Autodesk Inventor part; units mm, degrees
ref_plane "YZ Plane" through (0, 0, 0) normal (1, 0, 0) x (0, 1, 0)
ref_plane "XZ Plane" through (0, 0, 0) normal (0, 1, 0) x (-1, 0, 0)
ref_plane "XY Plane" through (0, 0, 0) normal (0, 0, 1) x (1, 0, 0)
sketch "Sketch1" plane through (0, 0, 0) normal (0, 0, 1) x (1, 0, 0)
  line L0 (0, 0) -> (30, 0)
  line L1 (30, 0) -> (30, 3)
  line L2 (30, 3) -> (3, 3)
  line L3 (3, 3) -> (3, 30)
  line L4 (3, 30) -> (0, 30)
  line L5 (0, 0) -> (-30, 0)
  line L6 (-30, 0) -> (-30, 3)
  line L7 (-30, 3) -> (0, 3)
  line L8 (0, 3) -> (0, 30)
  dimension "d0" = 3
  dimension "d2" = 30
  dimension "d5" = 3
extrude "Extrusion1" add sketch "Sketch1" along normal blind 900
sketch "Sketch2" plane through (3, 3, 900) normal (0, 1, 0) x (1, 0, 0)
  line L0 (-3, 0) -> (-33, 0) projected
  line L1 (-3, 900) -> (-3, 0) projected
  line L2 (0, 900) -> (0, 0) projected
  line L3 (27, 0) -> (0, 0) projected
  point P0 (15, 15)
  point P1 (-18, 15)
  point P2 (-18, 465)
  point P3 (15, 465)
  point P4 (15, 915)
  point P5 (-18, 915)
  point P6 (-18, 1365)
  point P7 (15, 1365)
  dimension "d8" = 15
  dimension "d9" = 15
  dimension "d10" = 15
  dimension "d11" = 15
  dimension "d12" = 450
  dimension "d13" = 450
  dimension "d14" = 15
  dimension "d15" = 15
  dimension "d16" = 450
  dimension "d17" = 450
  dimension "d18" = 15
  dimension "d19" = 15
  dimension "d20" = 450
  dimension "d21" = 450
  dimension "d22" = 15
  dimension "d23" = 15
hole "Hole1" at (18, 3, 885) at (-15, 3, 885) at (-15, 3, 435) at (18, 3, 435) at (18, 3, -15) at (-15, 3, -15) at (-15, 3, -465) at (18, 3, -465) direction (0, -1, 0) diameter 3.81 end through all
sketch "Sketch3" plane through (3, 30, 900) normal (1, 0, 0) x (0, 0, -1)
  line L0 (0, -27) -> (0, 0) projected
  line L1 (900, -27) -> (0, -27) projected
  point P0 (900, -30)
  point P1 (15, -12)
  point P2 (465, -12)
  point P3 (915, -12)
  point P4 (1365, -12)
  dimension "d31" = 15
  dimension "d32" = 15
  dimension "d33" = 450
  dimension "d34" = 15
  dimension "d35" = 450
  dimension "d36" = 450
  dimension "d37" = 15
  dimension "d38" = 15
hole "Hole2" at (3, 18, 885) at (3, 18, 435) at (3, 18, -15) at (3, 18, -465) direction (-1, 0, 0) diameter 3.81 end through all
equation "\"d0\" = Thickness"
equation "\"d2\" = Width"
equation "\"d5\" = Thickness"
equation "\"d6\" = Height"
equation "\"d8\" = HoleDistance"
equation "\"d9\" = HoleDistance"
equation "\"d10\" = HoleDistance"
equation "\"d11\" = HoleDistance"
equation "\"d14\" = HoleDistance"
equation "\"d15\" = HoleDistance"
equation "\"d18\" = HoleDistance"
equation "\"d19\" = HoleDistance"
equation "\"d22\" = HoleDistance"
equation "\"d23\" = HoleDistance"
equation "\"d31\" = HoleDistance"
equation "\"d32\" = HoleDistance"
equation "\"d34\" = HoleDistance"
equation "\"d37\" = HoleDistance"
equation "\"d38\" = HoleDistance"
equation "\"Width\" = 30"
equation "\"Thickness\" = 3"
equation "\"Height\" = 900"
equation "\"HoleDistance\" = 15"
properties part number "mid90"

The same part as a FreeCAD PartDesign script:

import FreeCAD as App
import Part
import Sketcher
Q = App.Units.Quantity


def add_polygon(sketch, points):
    """Adds a closed chain of lines whose ends are joined by coincident constraints."""
    first, n = sketch.GeometryCount, len(points)
    for a, b in zip(points, points[1:] + points[:1]):
        sketch.addGeometry(Part.LineSegment(App.Vector(*a, 0), App.Vector(*b, 0)), False)
    for i in range(n):
        sketch.addConstraint(Sketcher.Constraint("Coincident", first + i, 2, first + (i + 1) % n, 1))

doc = App.newDocument("Part")
params = doc.addObject("Spreadsheet::Sheet", "Params")
for row, (alias, value) in enumerate([
    ("pad1_length", "900 mm"),
    ("sketch2_diameter", "0.15 in"),
    ("hole_diameter", "0.15 in"),
    ("sketch3_diameter", "0.15 in"),
    ("hole2_diameter", "0.15 in"),
], start=1):
    params.set(f"A{row}", alias)
    params.set(f"B{row}", "=" + value)
    params.setAlias(f"B{row}", alias)

body = doc.addObject("PartDesign::Body", "Body")

# Sketch on XY plane
sketch1 = body.newObject("Sketcher::SketchObject", "Sketch")
sketch1.AttachmentSupport = (doc.getObject("XY_Plane"), [""])
sketch1.MapMode = "FlatFace"
add_polygon(sketch1, [(-30, 0), (30, 0), (30, 3), (3, 3), (3, 30), (0, 30), (0, 3), (-30, 3)])  # lines 0-7
sketch1.addConstraint(Sketcher.Constraint("Horizontal", 0))
sketch1.addConstraint(Sketcher.Constraint("Vertical", 1))
sketch1.addConstraint(Sketcher.Constraint("Horizontal", 2))
sketch1.addConstraint(Sketcher.Constraint("Vertical", 3))
sketch1.addConstraint(Sketcher.Constraint("Horizontal", 4))
sketch1.addConstraint(Sketcher.Constraint("Vertical", 5))
sketch1.addConstraint(Sketcher.Constraint("Horizontal", 6))
sketch1.addConstraint(Sketcher.Constraint("Vertical", 7))
sketch1.addConstraint(Sketcher.Constraint("Symmetric", 0, 2, 7, 2, -1, 1))
sketch1.addConstraint(Sketcher.Constraint("PointOnObject", 4, 2, -2))
sketch1.addConstraint(Sketcher.Constraint("Horizontal", 2, 2, 5, 2))
sketch1.addConstraint(Sketcher.Constraint("Equal", 4, 1))
sketch1.addConstraint(Sketcher.Constraint("Equal", 2, 3))
sketch1.addConstraint(Sketcher.Constraint("DistanceX", 4, 2, 4, 1, Q("0.1181 in")))
sketch1.addConstraint(Sketcher.Constraint("DistanceX", 6, 2, 6, 1, Q("1.1811 in")))
pad1 = body.newObject("PartDesign::Pad", "Pad")
pad1.Profile = sketch1
pad1.setExpression("Length", "Params.pad1_length")

# Sketch on XZ plane
sketch2 = body.newObject("Sketcher::SketchObject", "Sketch001")
sketch2.AttachmentSupport = (doc.getObject("XZ_Plane"), [""])
sketch2.MapMode = "FlatFace"
sketch2.AttachmentOffset = App.Placement(App.Vector(0, 0, -0.1181102 * 25.4), App.Rotation())
sketch2.addGeometry(Part.Circle(App.Vector(18, 885, 0), App.Vector(0, 0, 1), 1.9), False)
sketch2.addGeometry(Part.Circle(App.Vector(-15, 885, 0), App.Vector(0, 0, 1), 1.9), False)
sketch2.addGeometry(Part.Circle(App.Vector(-15, 435, 0), App.Vector(0, 0, 1), 1.9), False)
sketch2.addGeometry(Part.Circle(App.Vector(18, 435, 0), App.Vector(0, 0, 1), 1.9), False)
sketch2.addGeometry(Part.Circle(App.Vector(18, -15, 0), App.Vector(0, 0, 1), 1.9), False)
sketch2.addGeometry(Part.Circle(App.Vector(-15, -15, 0), App.Vector(0, 0, 1), 1.9), False)
sketch2.addGeometry(Part.Circle(App.Vector(-15, -465, 0), App.Vector(0, 0, 1), 1.9), False)
sketch2.addGeometry(Part.Circle(App.Vector(18, -465, 0), App.Vector(0, 0, 1), 1.9), False)
sketch2.addConstraint(Sketcher.Constraint("Equal", 0, 1))
sketch2.addConstraint(Sketcher.Constraint("Equal", 1, 2))
sketch2.addConstraint(Sketcher.Constraint("Equal", 2, 3))
sketch2.addConstraint(Sketcher.Constraint("Equal", 3, 4))
sketch2.addConstraint(Sketcher.Constraint("Equal", 4, 5))
sketch2.addConstraint(Sketcher.Constraint("Equal", 5, 6))
sketch2.addConstraint(Sketcher.Constraint("Equal", 6, 7))
sketch2.addConstraint(Sketcher.Constraint("Horizontal", 0, 3, 1, 3))
sketch2.addConstraint(Sketcher.Constraint("Horizontal", 2, 3, 3, 3))
sketch2.addConstraint(Sketcher.Constraint("Horizontal", 4, 3, 5, 3))
sketch2.addConstraint(Sketcher.Constraint("Horizontal", 6, 3, 7, 3))
sketch2.addConstraint(Sketcher.Constraint("Vertical", 1, 3, 2, 3))
sketch2.addConstraint(Sketcher.Constraint("Vertical", 0, 3, 3, 3))
sketch2.addConstraint(Sketcher.Constraint("Vertical", 3, 3, 4, 3))
sketch2.addConstraint(Sketcher.Constraint("Vertical", 2, 3, 5, 3))
sketch2.addConstraint(Sketcher.Constraint("Vertical", 5, 3, 6, 3))
sketch2.addConstraint(Sketcher.Constraint("Vertical", 4, 3, 7, 3))
sketch2.addConstraint(Sketcher.Constraint("Diameter", 0, Q("0.15 in")))
sketch2.addConstraint(Sketcher.Constraint("DistanceY", 6, 3, 1, 3, Q("53.1496 in")))
sketch2.addConstraint(Sketcher.Constraint("DistanceX", -1, 1, 0, 3, 18.0))
sketch2.addConstraint(Sketcher.Constraint("DistanceY", -1, 1, 0, 3, 885.0))
sketch2.addConstraint(Sketcher.Constraint("DistanceX", 1, 3, -1, 1, 15.0))
sketch2.addConstraint(Sketcher.Constraint("DistanceY", -1, 1, 2, 3, 435.0))
sketch2.addConstraint(Sketcher.Constraint("DistanceY", 4, 3, -1, 1, 15.0))
sketch2.setExpression("Constraints[17]", "Params.sketch2_diameter")
doc.recompute()
hole = body.newObject("PartDesign::Hole", "Hole")
hole.Profile = sketch2
hole.ThreadType = "None"
hole.setExpression("Diameter", "Params.hole_diameter")
hole.DepthType = "ThroughAll"
hole.Reversed = True

# Sketch on YZ plane
sketch3 = body.newObject("Sketcher::SketchObject", "Sketch002")
sketch3.AttachmentSupport = (doc.getObject("YZ_Plane"), [""])
sketch3.MapMode = "FlatFace"
sketch3.AttachmentOffset = App.Placement(App.Vector(0, 0, 0.1181102 * 25.4), App.Rotation())
sketch3.addGeometry(Part.Circle(App.Vector(18, 885, 0), App.Vector(0, 0, 1), 1.9), False)
sketch3.addGeometry(Part.Circle(App.Vector(18, 435, 0), App.Vector(0, 0, 1), 1.9), False)
sketch3.addGeometry(Part.Circle(App.Vector(18, -15, 0), App.Vector(0, 0, 1), 1.9), False)
sketch3.addGeometry(Part.Circle(App.Vector(18, -465, 0), App.Vector(0, 0, 1), 1.9), False)
sketch3.addConstraint(Sketcher.Constraint("Equal", 0, 1))
sketch3.addConstraint(Sketcher.Constraint("Equal", 1, 2))
sketch3.addConstraint(Sketcher.Constraint("Equal", 2, 3))
sketch3.addConstraint(Sketcher.Constraint("Vertical", 0, 3, 1, 3))
sketch3.addConstraint(Sketcher.Constraint("Vertical", 1, 3, 2, 3))
sketch3.addConstraint(Sketcher.Constraint("Vertical", 2, 3, 3, 3))
sketch3.addConstraint(Sketcher.Constraint("Diameter", 0, Q("0.15 in")))
sketch3.addConstraint(Sketcher.Constraint("DistanceY", 3, 3, 0, 3, Q("53.1496 in")))
sketch3.addConstraint(Sketcher.Constraint("DistanceX", -1, 1, 0, 3, 18.0))
sketch3.addConstraint(Sketcher.Constraint("DistanceY", -1, 1, 0, 3, 885.0))
sketch3.addConstraint(Sketcher.Constraint("DistanceY", -1, 1, 1, 3, 435.0))
sketch3.addConstraint(Sketcher.Constraint("DistanceY", 2, 3, -1, 1, 15.0))
sketch3.setExpression("Constraints[6]", "Params.sketch3_diameter")
doc.recompute()
hole2 = body.newObject("PartDesign::Hole", "Hole001")
hole2.Profile = sketch3
hole2.ThreadType = "None"
hole2.setExpression("Diameter", "Params.hole2_diameter")
hole2.DepthType = "ThroughAll"

doc.recompute()
